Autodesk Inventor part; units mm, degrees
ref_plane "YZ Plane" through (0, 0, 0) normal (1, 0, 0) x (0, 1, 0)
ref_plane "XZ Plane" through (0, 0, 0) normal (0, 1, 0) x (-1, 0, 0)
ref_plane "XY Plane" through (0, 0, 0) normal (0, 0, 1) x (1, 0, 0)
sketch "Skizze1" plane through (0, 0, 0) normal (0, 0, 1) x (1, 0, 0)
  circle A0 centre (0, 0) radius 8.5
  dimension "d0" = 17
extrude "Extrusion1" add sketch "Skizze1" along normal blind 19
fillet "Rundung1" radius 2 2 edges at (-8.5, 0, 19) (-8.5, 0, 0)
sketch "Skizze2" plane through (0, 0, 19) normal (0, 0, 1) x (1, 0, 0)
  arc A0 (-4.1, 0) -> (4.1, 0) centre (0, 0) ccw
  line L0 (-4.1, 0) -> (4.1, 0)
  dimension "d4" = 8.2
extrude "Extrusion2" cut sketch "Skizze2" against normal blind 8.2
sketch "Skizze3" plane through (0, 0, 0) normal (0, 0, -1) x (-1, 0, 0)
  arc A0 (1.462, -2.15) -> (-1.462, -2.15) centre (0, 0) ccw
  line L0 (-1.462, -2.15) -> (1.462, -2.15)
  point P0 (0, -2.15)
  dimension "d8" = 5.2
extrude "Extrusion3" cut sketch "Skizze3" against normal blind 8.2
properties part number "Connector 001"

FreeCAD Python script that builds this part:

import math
import FreeCAD as App
import Part
import Sketcher


def edges_at(feature, points):
    """Names of the edges that pass closest to the given points."""
    edges = feature.Shape.Edges
    near = lambda p: min(range(len(edges)), key=lambda i: edges[i].distToShape(Part.Vertex(*p))[0])
    return sorted({f"Edge{near(p) + 1}" for p in points})

doc = App.newDocument("Part")
body = doc.addObject("PartDesign::Body", "Body")

# Sketch on XY plane
sketch1 = body.newObject("Sketcher::SketchObject", "Sketch")
sketch1.AttachmentSupport = (doc.getObject("XY_Plane"), [""])
sketch1.MapMode = "FlatFace"
sketch1.addGeometry(Part.Circle(App.Vector(0, 0, 0), App.Vector(0, 0, 1), 8.5), False)
sketch1.addConstraint(Sketcher.Constraint("Coincident", 0, 3, -1, 1))
sketch1.addConstraint(Sketcher.Constraint("Diameter", 0, 17.0))
pad1 = body.newObject("PartDesign::Pad", "Pad")
pad1.Profile = sketch1
pad1.Length = 19
doc.recompute()

fillet = body.newObject("PartDesign::Fillet", "Fillet")
fillet.Base = (pad1, edges_at(pad1, [(-8.5, 0, 19), (-8.5, 0, 0)]))
fillet.Radius = 2

# Sketch on XY plane
sketch2 = body.newObject("Sketcher::SketchObject", "Sketch001")
sketch2.AttachmentSupport = (doc.getObject("XY_Plane"), [""])
sketch2.MapMode = "FlatFace"
sketch2.AttachmentOffset = App.Placement(App.Vector(0, 0, 19), App.Rotation())
sketch2.addGeometry(Part.LineSegment(App.Vector(4.1, 0, 0), App.Vector(-4.1, 0, 0)), False)
sketch2.addGeometry(Part.ArcOfCircle(Part.Circle(App.Vector(0, 0, 0), App.Vector(0, 0, 1), 4.1), math.radians(180), math.radians(360)), False)
sketch2.addConstraint(Sketcher.Constraint("Coincident", 0, 1, 1, 2))
sketch2.addConstraint(Sketcher.Constraint("Coincident", 1, 1, 0, 2))
sketch2.addConstraint(Sketcher.Constraint("Horizontal", 0))
sketch2.addConstraint(Sketcher.Constraint("Coincident", 1, 3, -1, 1))
sketch2.addConstraint(Sketcher.Constraint("PointOnObject", 0, 1, -1))
sketch2.addConstraint(Sketcher.Constraint("Radius", 1, 4.1))
pocket1 = body.newObject("PartDesign::Pocket", "Pocket")
pocket1.Profile = sketch2
pocket1.Length = 8.2

# Sketch on XY plane
sketch3 = body.newObject("Sketcher::SketchObject", "Sketch002")
sketch3.AttachmentSupport = (doc.getObject("XY_Plane"), [""])
sketch3.MapMode = "FlatFace"
sketch3.addGeometry(Part.LineSegment(App.Vector(1.462, -2.15, 0), App.Vector(-1.462, -2.15, 0)), False)
sketch3.addGeometry(Part.ArcOfCircle(Part.Circle(App.Vector(0, 0, 0), App.Vector(0, 0, 1), 2.599989), math.radians(-55.784298), math.radians(235.784298)), False)
sketch3.addConstraint(Sketcher.Constraint("Coincident", 0, 1, 1, 1))
sketch3.addConstraint(Sketcher.Constraint("Coincident", 1, 2, 0, 2))
sketch3.addConstraint(Sketcher.Constraint("Horizontal", 0))
sketch3.addConstraint(Sketcher.Constraint("Coincident", 1, 3, -1, 1))
sketch3.addConstraint(Sketcher.Constraint("Radius", 1, 2.6))
sketch3.addConstraint(Sketcher.Constraint("DistanceX", 0, 2, 0, 1, 2.924))
pocket2 = body.newObject("PartDesign::Pocket", "Pocket001")
pocket2.Profile = sketch3
pocket2.Length = 8.2
pocket2.Reversed = True

doc.recompute()
